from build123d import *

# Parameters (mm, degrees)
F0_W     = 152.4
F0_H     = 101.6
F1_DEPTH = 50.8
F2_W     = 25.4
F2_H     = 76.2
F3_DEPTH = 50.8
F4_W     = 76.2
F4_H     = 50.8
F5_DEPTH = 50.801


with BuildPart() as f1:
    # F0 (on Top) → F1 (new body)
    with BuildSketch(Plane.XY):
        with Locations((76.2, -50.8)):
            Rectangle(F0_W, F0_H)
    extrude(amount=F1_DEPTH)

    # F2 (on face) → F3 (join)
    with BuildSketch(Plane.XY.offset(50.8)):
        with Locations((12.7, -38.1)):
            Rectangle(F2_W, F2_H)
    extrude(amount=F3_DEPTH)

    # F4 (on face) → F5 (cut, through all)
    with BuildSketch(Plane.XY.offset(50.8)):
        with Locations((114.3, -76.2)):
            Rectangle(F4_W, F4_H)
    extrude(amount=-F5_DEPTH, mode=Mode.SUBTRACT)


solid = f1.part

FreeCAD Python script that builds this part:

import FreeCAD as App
import Part
import Sketcher

V = App.Vector
Q = App.Units.Quantity

doc = App.newDocument("Part")
params = doc.addObject("Spreadsheet::Sheet", "Params")
for row, (alias, value) in enumerate([
    ("sketch1_width", "6 in"),
    ("sketch1_height", "4 in"),
    ("pad1_length", "2 in"),
    ("sketch2_width", "1 in"),
    ("sketch2_height", "3 in"),
    ("pad2_length", "2 in"),
    ("sketch3_width", "3 in"),
    ("sketch3_height", "2 in"),
], start=1):
    params.set(f"A{row}", alias)
    params.set(f"B{row}", "=" + value)
    params.setAlias(f"B{row}", alias)

body = doc.addObject("PartDesign::Body", "Body")

sketch1 = body.newObject("Sketcher::SketchObject", "Sketch")
sketch1.AttachmentSupport = (doc.getObject("XY_Plane"), [""])
sketch1.MapMode = "FlatFace"
sketch1.addGeometry([
    Part.LineSegment(V(0, 0, 0), V(0, -102, 0)),
    Part.LineSegment(V(0, -102, 0), V(152, -102, 0)),
    Part.LineSegment(V(152, -102, 0), V(152, 0, 0)),
    Part.LineSegment(V(152, 0, 0), V(0, 0, 0)),
], False)
sketch1.addConstraint([
    Sketcher.Constraint("Coincident", 0, 2, 1, 1),
    Sketcher.Constraint("Coincident", 1, 2, 2, 1),
    Sketcher.Constraint("Coincident", 2, 2, 3, 1),
    Sketcher.Constraint("Coincident", 3, 2, 0, 1),
    Sketcher.Constraint("Vertical", 0),
    Sketcher.Constraint("Horizontal", 1),
    Sketcher.Constraint("Vertical", 2),
    Sketcher.Constraint("Horizontal", 3),
    Sketcher.Constraint("Coincident", 3, 2, -1, 1),
    Sketcher.Constraint("DistanceX", 1, 1, 1, 2, Q("6 in")),
    Sketcher.Constraint("DistanceY", 0, 2, 0, 1, Q("4 in")),
])
sketch1.setExpression("Constraints[9]", "Params.sketch1_width")
sketch1.setExpression("Constraints[10]", "Params.sketch1_height")
pad1 = body.newObject("PartDesign::Pad", "Pad")
pad1.Profile = sketch1
pad1.setExpression("Length", "Params.pad1_length")

sketch2 = body.newObject("Sketcher::SketchObject", "Sketch001")
sketch2.AttachmentSupport = (doc.getObject("XY_Plane"), [""])
sketch2.MapMode = "FlatFace"
sketch2.AttachmentOffset = App.Placement(V(0, 0, 2 * 25.4), App.Rotation())
sketch2.addGeometry([
    Part.LineSegment(V(0, 0, 0), V(0, -76, 0)),
    Part.LineSegment(V(0, -76, 0), V(25, -76, 0)),
    Part.LineSegment(V(25, -76, 0), V(25, 0, 0)),
    Part.LineSegment(V(25, 0, 0), V(0, 0, 0)),
], False)
sketch2.addConstraint([
    Sketcher.Constraint("Coincident", 0, 2, 1, 1),
    Sketcher.Constraint("Coincident", 1, 2, 2, 1),
    Sketcher.Constraint("Coincident", 2, 2, 3, 1),
    Sketcher.Constraint("Coincident", 3, 2, 0, 1),
    Sketcher.Constraint("Vertical", 0),
    Sketcher.Constraint("Horizontal", 1),
    Sketcher.Constraint("Vertical", 2),
    Sketcher.Constraint("Horizontal", 3),
    Sketcher.Constraint("Coincident", 3, 2, -1, 1),
    Sketcher.Constraint("DistanceX", 1, 1, 1, 2, Q("1 in")),
    Sketcher.Constraint("DistanceY", 0, 2, 0, 1, Q("3 in")),
])
sketch2.setExpression("Constraints[9]", "Params.sketch2_width")
sketch2.setExpression("Constraints[10]", "Params.sketch2_height")
pad2 = body.newObject("PartDesign::Pad", "Pad001")
pad2.Profile = sketch2
pad2.setExpression("Length", "Params.pad2_length")

sketch3 = body.newObject("Sketcher::SketchObject", "Sketch002")
sketch3.AttachmentSupport = (doc.getObject("XY_Plane"), [""])
sketch3.MapMode = "FlatFace"
sketch3.AttachmentOffset = App.Placement(V(0, 0, 2 * 25.4), App.Rotation())
sketch3.addGeometry([
    Part.LineSegment(V(76, -51, 0), V(76, -102, 0)),
    Part.LineSegment(V(76, -102, 0), V(152, -102, 0)),
    Part.LineSegment(V(152, -102, 0), V(152, -51, 0)),
    Part.LineSegment(V(152, -51, 0), V(76, -51, 0)),
], False)
sketch3.addConstraint([
    Sketcher.Constraint("Coincident", 0, 2, 1, 1),
    Sketcher.Constraint("Coincident", 1, 2, 2, 1),
    Sketcher.Constraint("Coincident", 2, 2, 3, 1),
    Sketcher.Constraint("Coincident", 3, 2, 0, 1),
    Sketcher.Constraint("Vertical", 0),
    Sketcher.Constraint("Horizontal", 1),
    Sketcher.Constraint("Vertical", 2),
    Sketcher.Constraint("Horizontal", 3),
    Sketcher.Constraint("DistanceX", 1, 1, 1, 2, Q("3 in")),
    Sketcher.Constraint("DistanceY", 0, 2, 0, 1, Q("2 in")),
    Sketcher.Constraint("DistanceX", -1, 1, 0, 2, Q("3 in")),
    Sketcher.Constraint("DistanceY", 0, 2, -1, 1, Q("4 in")),
])
sketch3.setExpression("Constraints[8]", "Params.sketch3_width")
sketch3.setExpression("Constraints[9]", "Params.sketch3_height")
pocket1 = body.newObject("PartDesign::Pocket", "Pocket")
pocket1.Profile = sketch3
pocket1.Type = "ThroughAll"

doc.recompute()
